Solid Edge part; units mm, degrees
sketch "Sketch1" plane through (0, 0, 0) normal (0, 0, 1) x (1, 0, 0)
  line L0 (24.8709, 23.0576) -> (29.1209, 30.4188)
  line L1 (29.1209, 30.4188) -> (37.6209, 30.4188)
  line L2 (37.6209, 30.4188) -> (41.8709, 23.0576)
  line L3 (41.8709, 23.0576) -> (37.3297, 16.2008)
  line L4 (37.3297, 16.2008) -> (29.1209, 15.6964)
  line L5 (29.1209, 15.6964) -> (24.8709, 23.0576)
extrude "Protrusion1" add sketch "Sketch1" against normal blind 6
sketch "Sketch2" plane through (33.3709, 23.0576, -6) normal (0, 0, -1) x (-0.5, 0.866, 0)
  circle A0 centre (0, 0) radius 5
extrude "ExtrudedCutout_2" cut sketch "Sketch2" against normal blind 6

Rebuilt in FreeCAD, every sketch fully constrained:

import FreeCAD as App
import Part
import Sketcher
from FreeCAD import Vector
Q = App.Units.Quantity


def add_polygon(sketch, points):
    """Adds a closed chain of lines whose ends are joined by coincident constraints."""
    first, n = sketch.GeometryCount, len(points)
    for a, b in zip(points, points[1:] + points[:1]):
        sketch.addGeometry(Part.LineSegment(App.Vector(*a, 0), App.Vector(*b, 0)), False)
    for i in range(n):
        sketch.addConstraint(Sketcher.Constraint("Coincident", first + i, 2, first + (i + 1) % n, 1))

doc = App.newDocument("Part")
params = doc.addObject("Spreadsheet::Sheet", "Params")
for row, (alias, value) in enumerate([
    ("sketch1_width", "8.5 mm"),
    ("pad1_length", "6 mm"),
    ("sketch2_diameter", "10 mm"),
    ("pocket1_length", "6 mm"),
], start=1):
    params.set(f"A{row}", alias)
    params.set(f"B{row}", "=" + value)
    params.setAlias(f"B{row}", alias)

body = doc.addObject("PartDesign::Body", "Body")

sketch1 = body.newObject("Sketcher::SketchObject", "Sketch")
sketch1.AttachmentSupport = (doc.getObject("XY_Plane"), [""])
sketch1.MapMode = "FlatFace"
add_polygon(sketch1, [(29, 30), (25, 23), (29, 16), (37, 16), (42, 23), (38, 30)])
sketch1.addConstraint([
    Sketcher.Constraint("Horizontal", 5),
    Sketcher.Constraint("Parallel", 1, 4),
    Sketcher.Constraint("Horizontal", 0, 2, 3, 2),
    Sketcher.Constraint("Vertical", 1, 2, 5, 2),
    Sketcher.Constraint("Equal", 0, 1),
    Sketcher.Constraint("Equal", 2, 3),
    Sketcher.Constraint("Angle", 0, Q("-120 deg")),
    Sketcher.Constraint("DistanceX", 5, 2, 5, 1, Q("8.5 mm")),
    Sketcher.Constraint("DistanceX", 0, 2, 3, 2, Q("17 mm")),
    Sketcher.Constraint("DistanceX", -1, 1, 0, 2, Q("24.871 mm")),
    Sketcher.Constraint("DistanceY", 2, 2, 4, 2, Q("14.218 mm")),
    Sketcher.Constraint("DistanceY", -1, 1, 0, 2, Q("23.0576 mm")),
])
sketch1.setExpression("Constraints[13]", "Params.sketch1_width")
pad1 = body.newObject("PartDesign::Pad", "Pad")
pad1.Profile = sketch1
pad1.setExpression("Length", "Params.pad1_length")
pad1.Reversed = True

sketch2 = body.newObject("Sketcher::SketchObject", "Sketch001")
sketch2.AttachmentSupport = (doc.getObject("XY_Plane"), [""])
sketch2.MapMode = "FlatFace"
sketch2.AttachmentOffset = App.Placement(Vector(0, 0, -6), App.Rotation())
sketch2.addGeometry(Part.Circle(Vector(33, 23, 0), Vector(0, 0, 1), 5), False)
sketch2.addConstraint([
    Sketcher.Constraint("Diameter", 0, Q("10 mm")),
    Sketcher.Constraint("DistanceX", -1, 1, 0, 3, Q("33.371 mm")),
    Sketcher.Constraint("DistanceY", -1, 1, 0, 3, Q("23.0576 mm")),
])
sketch2.setExpression("Constraints[0]", "Params.sketch2_diameter")
pocket1 = body.newObject("PartDesign::Pocket", "Pocket")
pocket1.Profile = sketch2
pocket1.setExpression("Length", "Params.pocket1_length")
pocket1.Reversed = True

doc.recompute()
